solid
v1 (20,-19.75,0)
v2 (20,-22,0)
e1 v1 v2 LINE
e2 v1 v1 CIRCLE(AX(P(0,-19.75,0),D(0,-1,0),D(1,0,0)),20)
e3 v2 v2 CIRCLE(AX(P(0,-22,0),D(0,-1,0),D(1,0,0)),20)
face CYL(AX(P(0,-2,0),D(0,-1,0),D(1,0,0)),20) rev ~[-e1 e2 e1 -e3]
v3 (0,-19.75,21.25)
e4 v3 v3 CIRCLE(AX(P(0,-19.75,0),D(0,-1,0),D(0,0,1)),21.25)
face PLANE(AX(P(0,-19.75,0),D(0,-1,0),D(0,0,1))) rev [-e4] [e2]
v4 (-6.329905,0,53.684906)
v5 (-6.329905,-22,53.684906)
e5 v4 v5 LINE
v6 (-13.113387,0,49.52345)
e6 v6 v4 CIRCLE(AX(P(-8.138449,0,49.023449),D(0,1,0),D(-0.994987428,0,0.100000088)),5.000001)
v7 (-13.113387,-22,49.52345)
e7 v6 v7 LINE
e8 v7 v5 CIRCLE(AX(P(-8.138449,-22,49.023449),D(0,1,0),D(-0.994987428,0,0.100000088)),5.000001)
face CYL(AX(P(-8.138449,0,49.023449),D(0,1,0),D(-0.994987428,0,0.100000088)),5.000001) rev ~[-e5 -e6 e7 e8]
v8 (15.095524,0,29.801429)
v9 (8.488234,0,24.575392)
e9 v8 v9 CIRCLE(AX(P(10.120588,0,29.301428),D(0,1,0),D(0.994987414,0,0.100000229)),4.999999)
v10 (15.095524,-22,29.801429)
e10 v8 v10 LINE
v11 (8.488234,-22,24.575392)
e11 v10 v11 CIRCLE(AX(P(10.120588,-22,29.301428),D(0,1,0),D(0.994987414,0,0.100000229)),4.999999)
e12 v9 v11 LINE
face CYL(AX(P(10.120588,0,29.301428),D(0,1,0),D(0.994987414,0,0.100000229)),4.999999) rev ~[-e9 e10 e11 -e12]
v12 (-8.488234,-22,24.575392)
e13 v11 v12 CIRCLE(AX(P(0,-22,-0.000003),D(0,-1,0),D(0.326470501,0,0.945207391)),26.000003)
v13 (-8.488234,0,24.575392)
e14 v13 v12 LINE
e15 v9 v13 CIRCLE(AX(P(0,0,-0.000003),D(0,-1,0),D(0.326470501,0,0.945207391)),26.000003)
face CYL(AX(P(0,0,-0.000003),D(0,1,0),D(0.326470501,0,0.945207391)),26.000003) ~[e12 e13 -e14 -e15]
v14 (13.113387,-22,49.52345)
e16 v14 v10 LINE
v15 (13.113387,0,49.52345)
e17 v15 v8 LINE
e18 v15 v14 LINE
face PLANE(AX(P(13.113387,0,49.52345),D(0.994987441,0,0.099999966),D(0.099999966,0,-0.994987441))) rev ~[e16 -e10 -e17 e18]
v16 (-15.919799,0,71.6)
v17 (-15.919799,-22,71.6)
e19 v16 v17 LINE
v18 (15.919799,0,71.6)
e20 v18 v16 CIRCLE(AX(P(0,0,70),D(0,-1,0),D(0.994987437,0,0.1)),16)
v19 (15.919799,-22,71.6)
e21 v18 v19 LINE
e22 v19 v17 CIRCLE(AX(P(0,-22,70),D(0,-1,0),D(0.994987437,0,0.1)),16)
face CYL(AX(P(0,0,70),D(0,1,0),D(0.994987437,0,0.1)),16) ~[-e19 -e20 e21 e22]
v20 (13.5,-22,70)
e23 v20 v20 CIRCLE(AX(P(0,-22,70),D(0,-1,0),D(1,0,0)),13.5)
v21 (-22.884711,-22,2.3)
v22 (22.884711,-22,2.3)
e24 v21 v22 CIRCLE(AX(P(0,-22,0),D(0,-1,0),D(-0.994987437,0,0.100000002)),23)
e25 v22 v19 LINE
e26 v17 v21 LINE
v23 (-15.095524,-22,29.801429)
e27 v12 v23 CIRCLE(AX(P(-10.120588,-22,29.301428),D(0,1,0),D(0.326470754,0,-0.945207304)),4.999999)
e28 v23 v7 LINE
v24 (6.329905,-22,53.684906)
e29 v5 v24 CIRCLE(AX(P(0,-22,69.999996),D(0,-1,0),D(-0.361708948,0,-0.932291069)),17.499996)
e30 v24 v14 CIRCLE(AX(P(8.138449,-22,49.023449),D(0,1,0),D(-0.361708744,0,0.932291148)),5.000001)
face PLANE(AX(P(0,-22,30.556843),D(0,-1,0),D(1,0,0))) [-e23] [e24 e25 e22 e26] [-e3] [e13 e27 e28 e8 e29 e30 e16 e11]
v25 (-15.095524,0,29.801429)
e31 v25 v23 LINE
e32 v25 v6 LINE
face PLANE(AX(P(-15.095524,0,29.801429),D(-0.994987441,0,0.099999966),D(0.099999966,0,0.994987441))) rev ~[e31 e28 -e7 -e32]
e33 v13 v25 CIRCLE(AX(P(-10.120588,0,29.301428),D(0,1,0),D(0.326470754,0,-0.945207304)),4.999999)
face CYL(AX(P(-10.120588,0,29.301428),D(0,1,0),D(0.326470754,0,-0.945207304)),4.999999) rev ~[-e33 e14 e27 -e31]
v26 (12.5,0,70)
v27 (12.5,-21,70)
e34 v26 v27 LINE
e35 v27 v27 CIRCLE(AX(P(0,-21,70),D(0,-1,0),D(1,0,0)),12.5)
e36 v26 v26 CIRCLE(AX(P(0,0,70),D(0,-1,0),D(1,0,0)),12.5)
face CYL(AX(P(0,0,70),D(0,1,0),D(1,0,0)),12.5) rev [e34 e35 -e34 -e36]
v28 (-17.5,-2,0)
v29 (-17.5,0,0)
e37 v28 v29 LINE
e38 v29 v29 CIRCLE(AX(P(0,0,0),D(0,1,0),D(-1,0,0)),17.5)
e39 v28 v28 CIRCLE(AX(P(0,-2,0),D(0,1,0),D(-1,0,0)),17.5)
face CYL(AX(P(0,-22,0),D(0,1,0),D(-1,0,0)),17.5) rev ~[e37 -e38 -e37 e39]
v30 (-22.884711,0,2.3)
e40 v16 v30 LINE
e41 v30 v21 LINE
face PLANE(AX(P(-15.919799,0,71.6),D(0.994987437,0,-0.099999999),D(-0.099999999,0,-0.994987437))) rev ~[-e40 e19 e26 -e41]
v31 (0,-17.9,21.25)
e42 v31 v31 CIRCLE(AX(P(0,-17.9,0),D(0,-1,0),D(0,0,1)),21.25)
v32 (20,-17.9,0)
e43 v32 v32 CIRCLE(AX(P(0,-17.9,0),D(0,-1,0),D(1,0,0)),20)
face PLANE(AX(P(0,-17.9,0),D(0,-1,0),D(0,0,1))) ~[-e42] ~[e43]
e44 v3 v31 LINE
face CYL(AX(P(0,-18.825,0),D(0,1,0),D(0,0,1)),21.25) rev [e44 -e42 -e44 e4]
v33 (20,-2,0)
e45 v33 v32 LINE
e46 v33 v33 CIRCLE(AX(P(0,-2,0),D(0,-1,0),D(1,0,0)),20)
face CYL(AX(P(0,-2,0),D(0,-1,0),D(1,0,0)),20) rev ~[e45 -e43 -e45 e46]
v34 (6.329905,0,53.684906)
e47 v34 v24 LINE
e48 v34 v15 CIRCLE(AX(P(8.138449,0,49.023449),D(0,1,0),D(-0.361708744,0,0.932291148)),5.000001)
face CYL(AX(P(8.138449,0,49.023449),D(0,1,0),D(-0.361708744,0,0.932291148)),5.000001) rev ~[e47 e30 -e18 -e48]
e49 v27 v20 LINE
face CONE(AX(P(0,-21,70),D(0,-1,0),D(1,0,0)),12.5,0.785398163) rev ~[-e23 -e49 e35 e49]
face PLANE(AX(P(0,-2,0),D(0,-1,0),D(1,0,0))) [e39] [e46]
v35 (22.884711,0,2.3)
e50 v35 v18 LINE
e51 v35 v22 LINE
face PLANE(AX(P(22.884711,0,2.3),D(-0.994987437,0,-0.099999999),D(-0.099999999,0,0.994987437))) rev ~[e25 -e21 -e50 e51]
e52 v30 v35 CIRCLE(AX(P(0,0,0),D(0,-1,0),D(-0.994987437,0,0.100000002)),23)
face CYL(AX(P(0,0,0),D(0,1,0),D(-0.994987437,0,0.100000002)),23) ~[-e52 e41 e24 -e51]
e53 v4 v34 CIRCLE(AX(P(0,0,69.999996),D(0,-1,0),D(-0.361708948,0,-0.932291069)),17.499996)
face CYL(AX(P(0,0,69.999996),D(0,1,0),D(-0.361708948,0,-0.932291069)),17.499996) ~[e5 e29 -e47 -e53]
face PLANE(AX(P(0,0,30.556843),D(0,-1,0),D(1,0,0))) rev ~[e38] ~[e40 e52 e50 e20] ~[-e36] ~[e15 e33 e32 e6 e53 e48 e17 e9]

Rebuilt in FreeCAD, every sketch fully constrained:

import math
import FreeCAD as App
import Part
import Sketcher
Q = App.Units.Quantity


def edges_at(feature, points):
    """Names of the edges that pass closest to the given points."""
    edges = feature.Shape.Edges
    near = lambda p: min(range(len(edges)), key=lambda i: edges[i].distToShape(Part.Vertex(*p))[0])
    return sorted({f"Edge{near(p) + 1}" for p in points})


def add_polygon(sketch, points):
    """Adds a closed chain of lines whose ends are joined by coincident constraints."""
    first, n = sketch.GeometryCount, len(points)
    for a, b in zip(points, points[1:] + points[:1]):
        sketch.addGeometry(Part.LineSegment(App.Vector(*a, 0), App.Vector(*b, 0)), False)
    for i in range(n):
        sketch.addConstraint(Sketcher.Constraint("Coincident", first + i, 2, first + (i + 1) % n, 1))

doc = App.newDocument("Part")
body = doc.addObject("PartDesign::Body", "Body")

# Sketch on XZ plane
sketch1 = body.newObject("Sketcher::SketchObject", "Sketch")
sketch1.AttachmentSupport = (doc.getObject("XZ_Plane"), [""])
sketch1.MapMode = "FlatFace"
sketch1.addGeometry([
    Part.LineSegment(App.Vector(-15.9, 71.6, 0), App.Vector(-22.9, 2.3, 0)),  # 0
    Part.ArcOfCircle(Part.Circle(App.Vector(0, 0, 0), App.Vector(0, 0, 1), 23), math.radians(174), math.radians(366)),  # 1
    Part.LineSegment(App.Vector(22.9, 2.3, 0), App.Vector(15.9, 71.6, 0)),  # 2
    Part.ArcOfCircle(Part.Circle(App.Vector(0, 70, 0), App.Vector(0, 0, 1), 16), math.radians(6), math.radians(174)),  # 3
    Part.LineSegment(App.Vector(-15.1, 29.8, 0), App.Vector(-13.1, 49.5, 0)),  # 4
    Part.ArcOfCircle(Part.Circle(App.Vector(-8.1, 49, 0), App.Vector(0, 0, 1), 5), math.radians(69), math.radians(174)),  # 5
    Part.ArcOfCircle(Part.Circle(App.Vector(0, 70, 0), App.Vector(0, 0, 1), 17.5), math.radians(-111), math.radians(-69)),  # 6
    Part.ArcOfCircle(Part.Circle(App.Vector(8.1, 49, 0), App.Vector(0, 0, 1), 5), math.radians(6), math.radians(111)),  # 7
    Part.LineSegment(App.Vector(13.1, 49.5, 0), App.Vector(15.1, 29.8, 0)),  # 8
    Part.ArcOfCircle(Part.Circle(App.Vector(10.1, 29.3, 0), App.Vector(0, 0, 1), 5), math.radians(-109), math.radians(6)),  # 9
    Part.ArcOfCircle(Part.Circle(App.Vector(0, 0, 0), App.Vector(0, 0, 1), 26), math.radians(71), math.radians(109)),  # 10
    Part.ArcOfCircle(Part.Circle(App.Vector(-10.1, 29.3, 0), App.Vector(0, 0, 1), 5), math.radians(174), math.radians(289)),  # 11
    Part.Circle(App.Vector(0, 70, 0), App.Vector(0, 0, 1), 12.5),  # 12
], False)
sketch1.addConstraint([
    Sketcher.Constraint("Tangent", 0, 2, 1, 1),
    Sketcher.Constraint("Tangent", 1, 2, 2, 1),
    Sketcher.Constraint("Tangent", 2, 2, 3, 1),
    Sketcher.Constraint("Tangent", 3, 2, 0, 1),
    Sketcher.Constraint("Tangent", 4, 2, 5, 2),
    Sketcher.Constraint("Tangent", 5, 1, 6, 1),
    Sketcher.Constraint("Tangent", 6, 2, 7, 2),
    Sketcher.Constraint("Tangent", 7, 1, 8, 1),
    Sketcher.Constraint("Tangent", 8, 2, 9, 2),
    Sketcher.Constraint("Tangent", 9, 1, 10, 1),
    Sketcher.Constraint("Tangent", 10, 2, 11, 2),
    Sketcher.Constraint("Tangent", 11, 1, 4, 1),
    Sketcher.Constraint("Coincident", 1, 3, -1, 1),
    Sketcher.Constraint("Coincident", 10, 3, -1, 1),
    Sketcher.Constraint("Coincident", 6, 3, 3, 3),
    Sketcher.Constraint("Coincident", 12, 3, 3, 3),
    Sketcher.Constraint("Equal", 5, 7),
    Sketcher.Constraint("Equal", 7, 9),
    Sketcher.Constraint("Equal", 9, 11),
    Sketcher.Constraint("Symmetric", 5, 3, 7, 3, -2),
    Sketcher.Constraint("Parallel", 0, 4),
    Sketcher.Constraint("Parallel", 2, 8),
    Sketcher.Constraint("Diameter", 12, Q("25 mm")),
    Sketcher.Constraint("Radius", 1, Q("23 mm")),
    Sketcher.Constraint("Radius", 3, Q("16 mm")),
    Sketcher.Constraint("Radius", 5, Q("5.000001 mm")),
    Sketcher.Constraint("DistanceY", -1, 1, 3, 3, Q("70 mm")),
    Sketcher.Constraint("Radius", 6, Q("17.499996 mm")),
    Sketcher.Constraint("Radius", 10, Q("26.000003 mm")),
    Sketcher.Constraint("DistanceX", 5, 3, 7, 3, Q("16.276898 mm")),
])
pad1 = body.newObject("PartDesign::Pad", "Pad")
pad1.Profile = sketch1
pad1.Length = 22
doc.recompute()

chamfer = body.newObject("PartDesign::Chamfer", "Chamfer")
chamfer.Base = (pad1, edges_at(pad1, [(-12.5, -22, 70)]))
chamfer.Size = 1

# Sketch on XZ plane
sketch2 = body.newObject("Sketcher::SketchObject", "Sketch001")
sketch2.AttachmentSupport = (doc.getObject("XZ_Plane"), [""])
sketch2.MapMode = "FlatFace"
sketch2.AttachmentOffset = App.Placement(App.Vector(0, 0, 22), App.Rotation())
sketch2.addGeometry(Part.Circle(App.Vector(0, 0, 0), App.Vector(0, 0, 1), 18), False)
sketch2.addConstraint([
    Sketcher.Constraint("Coincident", 0, 3, -1, 1),
    Sketcher.Constraint("Diameter", 0, Q("35 mm")),
])
doc.recompute()
hole = body.newObject("PartDesign::Hole", "Hole")
hole.Profile = sketch2
hole.ThreadType = "None"
hole.Diameter = 35
hole.DepthType = "ThroughAll"
hole.HoleCutType = "Counterbore"
hole.HoleCutDiameter = 40
hole.HoleCutDepth = 20

# Sketch on YZ plane
sketch3 = body.newObject("Sketcher::SketchObject", "Sketch002")
sketch3.AttachmentSupport = (doc.getObject("YZ_Plane"), [""])
sketch3.MapMode = "FlatFace"
add_polygon(sketch3, [(-19.8, 21.2), (-19.8, 0), (-17.9, 0), (-17.9, 21.2)])  # lines 0-3
sketch3.addConstraint([
    Sketcher.Constraint("Vertical", 0),
    Sketcher.Constraint("Horizontal", 1),
    Sketcher.Constraint("Vertical", 2),
    Sketcher.Constraint("Horizontal", 3),
    Sketcher.Constraint("PointOnObject", 0, 2, -1),
    Sketcher.Constraint("DistanceX", 1, 1, 1, 2, Q("1.85 mm")),
    Sketcher.Constraint("DistanceY", 0, 2, 0, 1, Q("21.25 mm")),
    Sketcher.Constraint("DistanceX", 1, 2, -1, 1, Q("17.9 mm")),
])
groove = body.newObject("PartDesign::Groove", "Groove")
groove.Profile = sketch3
groove.ReferenceAxis = (sketch3, ["H_Axis"])
groove.Angle = 360

doc.recompute()
